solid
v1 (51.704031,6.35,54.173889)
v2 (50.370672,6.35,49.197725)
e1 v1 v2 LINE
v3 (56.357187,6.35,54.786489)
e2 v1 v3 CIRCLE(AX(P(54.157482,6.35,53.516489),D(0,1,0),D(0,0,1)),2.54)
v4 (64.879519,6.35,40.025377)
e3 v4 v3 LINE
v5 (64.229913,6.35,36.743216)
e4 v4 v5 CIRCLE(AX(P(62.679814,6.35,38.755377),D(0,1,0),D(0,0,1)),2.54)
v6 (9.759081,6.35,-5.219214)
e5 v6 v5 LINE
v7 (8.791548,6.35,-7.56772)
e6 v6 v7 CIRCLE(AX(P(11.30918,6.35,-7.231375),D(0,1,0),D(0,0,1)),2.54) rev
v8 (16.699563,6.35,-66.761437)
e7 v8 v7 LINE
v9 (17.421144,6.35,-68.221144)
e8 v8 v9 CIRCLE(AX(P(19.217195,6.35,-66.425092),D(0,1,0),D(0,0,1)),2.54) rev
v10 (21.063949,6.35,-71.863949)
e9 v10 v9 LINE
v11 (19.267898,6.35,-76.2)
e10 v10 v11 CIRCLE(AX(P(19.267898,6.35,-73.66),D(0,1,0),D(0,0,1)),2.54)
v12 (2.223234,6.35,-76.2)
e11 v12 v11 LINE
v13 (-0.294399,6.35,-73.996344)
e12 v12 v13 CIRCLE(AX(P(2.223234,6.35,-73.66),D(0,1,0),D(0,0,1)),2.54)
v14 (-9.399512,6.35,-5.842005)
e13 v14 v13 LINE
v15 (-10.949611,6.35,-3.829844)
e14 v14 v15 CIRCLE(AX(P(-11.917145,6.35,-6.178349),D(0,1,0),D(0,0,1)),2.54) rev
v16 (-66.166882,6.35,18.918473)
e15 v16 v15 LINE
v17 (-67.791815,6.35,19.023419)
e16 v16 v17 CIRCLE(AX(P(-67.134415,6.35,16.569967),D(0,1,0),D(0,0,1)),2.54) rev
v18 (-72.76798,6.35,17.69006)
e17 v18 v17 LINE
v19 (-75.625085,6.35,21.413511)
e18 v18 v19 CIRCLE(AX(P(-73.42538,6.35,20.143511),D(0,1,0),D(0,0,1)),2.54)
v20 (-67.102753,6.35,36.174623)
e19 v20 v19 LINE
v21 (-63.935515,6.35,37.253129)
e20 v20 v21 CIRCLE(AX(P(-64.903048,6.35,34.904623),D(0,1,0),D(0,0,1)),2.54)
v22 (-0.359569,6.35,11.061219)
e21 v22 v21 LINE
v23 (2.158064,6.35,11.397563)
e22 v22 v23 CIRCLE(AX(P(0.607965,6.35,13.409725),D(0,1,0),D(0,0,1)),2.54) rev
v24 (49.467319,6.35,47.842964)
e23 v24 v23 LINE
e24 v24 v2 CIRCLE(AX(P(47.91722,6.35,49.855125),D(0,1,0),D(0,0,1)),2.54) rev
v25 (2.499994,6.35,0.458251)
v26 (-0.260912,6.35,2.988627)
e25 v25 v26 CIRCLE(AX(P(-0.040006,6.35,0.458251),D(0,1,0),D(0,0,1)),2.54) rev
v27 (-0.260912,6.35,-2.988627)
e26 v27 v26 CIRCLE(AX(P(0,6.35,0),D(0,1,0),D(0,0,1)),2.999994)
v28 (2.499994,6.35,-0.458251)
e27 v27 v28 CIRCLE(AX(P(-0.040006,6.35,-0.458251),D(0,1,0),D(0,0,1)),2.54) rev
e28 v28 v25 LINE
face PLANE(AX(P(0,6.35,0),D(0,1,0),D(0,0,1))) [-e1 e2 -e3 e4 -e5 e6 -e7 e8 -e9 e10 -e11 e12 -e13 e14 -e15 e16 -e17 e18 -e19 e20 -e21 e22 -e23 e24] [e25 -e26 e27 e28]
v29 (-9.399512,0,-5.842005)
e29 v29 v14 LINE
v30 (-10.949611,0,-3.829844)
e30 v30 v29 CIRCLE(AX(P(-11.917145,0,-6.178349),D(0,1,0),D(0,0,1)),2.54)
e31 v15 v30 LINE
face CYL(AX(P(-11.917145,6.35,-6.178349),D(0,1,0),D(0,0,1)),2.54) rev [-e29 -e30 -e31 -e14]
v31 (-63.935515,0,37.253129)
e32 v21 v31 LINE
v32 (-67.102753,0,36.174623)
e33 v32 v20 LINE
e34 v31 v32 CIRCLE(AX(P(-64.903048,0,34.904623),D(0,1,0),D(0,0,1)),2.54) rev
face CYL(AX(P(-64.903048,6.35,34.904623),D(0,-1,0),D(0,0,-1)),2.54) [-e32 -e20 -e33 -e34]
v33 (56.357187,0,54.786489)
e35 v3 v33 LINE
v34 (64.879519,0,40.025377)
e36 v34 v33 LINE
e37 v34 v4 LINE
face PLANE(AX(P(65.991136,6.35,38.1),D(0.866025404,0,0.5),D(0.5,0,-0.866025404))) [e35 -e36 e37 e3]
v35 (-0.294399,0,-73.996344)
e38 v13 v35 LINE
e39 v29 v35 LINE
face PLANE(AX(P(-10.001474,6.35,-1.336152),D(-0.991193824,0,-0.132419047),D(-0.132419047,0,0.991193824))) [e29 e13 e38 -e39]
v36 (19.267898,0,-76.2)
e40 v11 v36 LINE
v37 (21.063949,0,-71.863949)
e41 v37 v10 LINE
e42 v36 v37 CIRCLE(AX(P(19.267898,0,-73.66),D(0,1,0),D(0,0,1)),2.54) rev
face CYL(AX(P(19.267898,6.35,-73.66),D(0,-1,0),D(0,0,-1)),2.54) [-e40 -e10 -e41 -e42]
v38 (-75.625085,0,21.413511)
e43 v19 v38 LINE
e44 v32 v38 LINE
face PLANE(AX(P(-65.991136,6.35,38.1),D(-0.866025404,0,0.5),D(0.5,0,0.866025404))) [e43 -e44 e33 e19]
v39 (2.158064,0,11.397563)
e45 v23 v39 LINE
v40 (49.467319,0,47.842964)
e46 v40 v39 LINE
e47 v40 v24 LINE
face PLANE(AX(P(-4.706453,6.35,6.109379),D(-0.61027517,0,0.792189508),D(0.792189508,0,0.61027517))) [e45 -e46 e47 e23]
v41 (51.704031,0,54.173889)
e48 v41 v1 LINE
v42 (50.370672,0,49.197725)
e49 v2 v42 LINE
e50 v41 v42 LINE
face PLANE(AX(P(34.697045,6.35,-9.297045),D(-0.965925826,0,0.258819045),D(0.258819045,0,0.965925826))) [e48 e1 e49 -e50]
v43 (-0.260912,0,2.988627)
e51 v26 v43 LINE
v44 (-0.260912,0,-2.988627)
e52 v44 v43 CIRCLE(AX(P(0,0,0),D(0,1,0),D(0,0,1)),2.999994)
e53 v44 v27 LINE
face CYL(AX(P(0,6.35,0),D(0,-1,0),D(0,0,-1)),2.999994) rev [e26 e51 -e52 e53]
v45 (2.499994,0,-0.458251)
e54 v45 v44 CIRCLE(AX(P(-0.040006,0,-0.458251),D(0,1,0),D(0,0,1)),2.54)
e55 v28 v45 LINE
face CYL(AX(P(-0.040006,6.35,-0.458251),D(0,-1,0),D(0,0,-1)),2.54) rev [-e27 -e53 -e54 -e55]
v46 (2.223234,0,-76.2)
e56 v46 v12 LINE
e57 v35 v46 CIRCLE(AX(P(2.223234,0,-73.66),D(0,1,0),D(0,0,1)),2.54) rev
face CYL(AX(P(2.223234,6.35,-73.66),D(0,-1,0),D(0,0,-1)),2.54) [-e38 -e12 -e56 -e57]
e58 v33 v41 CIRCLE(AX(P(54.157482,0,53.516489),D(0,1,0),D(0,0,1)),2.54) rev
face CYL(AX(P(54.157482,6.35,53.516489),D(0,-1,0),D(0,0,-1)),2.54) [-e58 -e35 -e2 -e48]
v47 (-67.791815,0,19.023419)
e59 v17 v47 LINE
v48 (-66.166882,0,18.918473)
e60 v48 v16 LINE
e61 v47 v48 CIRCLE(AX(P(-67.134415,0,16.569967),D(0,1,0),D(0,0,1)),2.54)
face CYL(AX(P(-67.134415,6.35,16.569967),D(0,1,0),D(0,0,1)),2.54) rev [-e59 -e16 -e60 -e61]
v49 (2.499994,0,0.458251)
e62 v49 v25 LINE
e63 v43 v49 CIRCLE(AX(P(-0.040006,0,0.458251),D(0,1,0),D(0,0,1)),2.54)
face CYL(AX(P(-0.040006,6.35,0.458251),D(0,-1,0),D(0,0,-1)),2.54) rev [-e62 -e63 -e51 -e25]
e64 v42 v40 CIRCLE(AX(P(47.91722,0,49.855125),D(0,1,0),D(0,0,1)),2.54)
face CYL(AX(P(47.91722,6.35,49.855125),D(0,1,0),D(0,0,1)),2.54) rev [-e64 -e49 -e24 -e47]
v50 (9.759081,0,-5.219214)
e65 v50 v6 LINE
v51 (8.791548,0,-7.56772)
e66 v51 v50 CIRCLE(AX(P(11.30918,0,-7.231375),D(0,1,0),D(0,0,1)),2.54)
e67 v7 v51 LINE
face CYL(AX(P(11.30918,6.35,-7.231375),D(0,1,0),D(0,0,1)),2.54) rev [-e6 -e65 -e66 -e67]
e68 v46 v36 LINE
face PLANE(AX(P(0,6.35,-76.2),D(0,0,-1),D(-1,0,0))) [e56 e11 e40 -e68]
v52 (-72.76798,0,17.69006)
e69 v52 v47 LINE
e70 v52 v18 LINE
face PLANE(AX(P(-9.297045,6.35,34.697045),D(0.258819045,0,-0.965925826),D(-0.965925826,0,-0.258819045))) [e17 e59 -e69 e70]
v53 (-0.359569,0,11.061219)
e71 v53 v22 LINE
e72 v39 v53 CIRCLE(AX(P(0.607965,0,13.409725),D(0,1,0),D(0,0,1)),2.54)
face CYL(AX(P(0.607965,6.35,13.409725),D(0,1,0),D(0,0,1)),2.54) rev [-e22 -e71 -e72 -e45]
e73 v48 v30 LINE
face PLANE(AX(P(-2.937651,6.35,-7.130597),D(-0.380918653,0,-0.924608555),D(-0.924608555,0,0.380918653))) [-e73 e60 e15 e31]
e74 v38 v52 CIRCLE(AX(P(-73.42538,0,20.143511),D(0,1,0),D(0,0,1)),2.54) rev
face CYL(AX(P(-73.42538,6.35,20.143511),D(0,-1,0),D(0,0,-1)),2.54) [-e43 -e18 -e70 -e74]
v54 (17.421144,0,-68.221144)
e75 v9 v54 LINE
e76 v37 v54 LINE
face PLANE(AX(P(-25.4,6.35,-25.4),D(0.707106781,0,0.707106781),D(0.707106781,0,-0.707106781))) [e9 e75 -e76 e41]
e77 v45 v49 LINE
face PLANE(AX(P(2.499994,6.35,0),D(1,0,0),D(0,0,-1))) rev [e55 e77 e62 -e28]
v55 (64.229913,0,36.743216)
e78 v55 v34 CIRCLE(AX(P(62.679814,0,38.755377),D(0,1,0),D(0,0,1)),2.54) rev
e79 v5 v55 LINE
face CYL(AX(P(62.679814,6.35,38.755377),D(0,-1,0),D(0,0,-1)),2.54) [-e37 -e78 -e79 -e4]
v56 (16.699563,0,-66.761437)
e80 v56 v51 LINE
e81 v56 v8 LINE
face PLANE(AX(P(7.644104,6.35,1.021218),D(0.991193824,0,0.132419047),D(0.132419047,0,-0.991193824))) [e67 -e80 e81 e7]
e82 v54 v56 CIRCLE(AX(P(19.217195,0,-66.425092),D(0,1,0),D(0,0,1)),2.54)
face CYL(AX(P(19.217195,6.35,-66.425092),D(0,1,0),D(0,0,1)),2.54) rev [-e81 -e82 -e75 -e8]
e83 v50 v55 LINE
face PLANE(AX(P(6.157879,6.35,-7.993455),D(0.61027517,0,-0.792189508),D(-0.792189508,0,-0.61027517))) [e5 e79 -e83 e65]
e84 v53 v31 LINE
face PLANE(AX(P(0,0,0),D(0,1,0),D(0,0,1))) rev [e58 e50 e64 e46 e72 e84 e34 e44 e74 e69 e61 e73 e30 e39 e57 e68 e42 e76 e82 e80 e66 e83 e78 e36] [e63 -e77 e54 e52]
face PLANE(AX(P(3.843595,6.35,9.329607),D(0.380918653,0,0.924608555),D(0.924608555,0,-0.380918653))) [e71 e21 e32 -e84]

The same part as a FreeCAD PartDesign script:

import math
import FreeCAD as App
import Part
import Sketcher

V = App.Vector
Q = App.Units.Quantity


def edges_at(feature, points):
    """Names of the edges that pass closest to the given points."""
    edges = feature.Shape.Edges
    near = lambda p: min(range(len(edges)), key=lambda i: edges[i].distToShape(Part.Vertex(*p))[0])
    return sorted({f"Edge{near(p) + 1}" for p in points})

doc = App.newDocument("Part")
body = doc.addObject("PartDesign::Body", "Body")

# Sketch on XZ plane
sketch1 = body.newObject("Sketcher::SketchObject", "Sketch")
sketch1.AttachmentSupport = (doc.getObject("XZ_Plane"), [""])
sketch1.MapMode = "FlatFace"
sketch1.addGeometry(Part.LineSegment(V(25.4, -76.2, 0), V(0, -76.2, 0)), False)
sketch1.addGeometry(Part.LineSegment(V(0, -76.2, 0), V(-9.593701, -4.388449, 0)), False)
sketch1.addGeometry(Part.LineSegment(V(-9.593701, -4.388449, 0), V(-66.961592, 19.245876, 0)), False)
sketch1.addGeometry(Part.LineSegment(V(-66.961592, 19.245876, 0), V(-78.691136, 16.102955, 0)), False)
sketch1.addGeometry(Part.LineSegment(V(-78.691136, 16.102955, 0), V(-65.991136, 38.1, 0)), False)
sketch1.addGeometry(Part.LineSegment(V(-65.991136, 38.1, 0), V(0.996342, 10.502613, 0)), False)
sketch1.addGeometry(Part.LineSegment(V(0.996342, 10.502613, 0), V(50.148214, 48.367502, 0)), False)
sketch1.addGeometry(Part.LineSegment(V(50.148214, 48.367502, 0), V(53.291136, 60.097045, 0)), False)
sketch1.addGeometry(Part.LineSegment(V(53.291136, 60.097045, 0), V(65.991136, 38.1, 0)), False)
sketch1.addGeometry(Part.LineSegment(V(65.991136, 38.1, 0), V(8.597359, -6.114164, 0)), False)
sketch1.addGeometry(Part.LineSegment(V(8.597359, -6.114164, 0), V(16.813378, -67.613378, 0)), False)
sketch1.addGeometry(Part.LineSegment(V(16.813378, -67.613378, 0), V(25.4, -76.2, 0)), False)
sketch1.addGeometry(Part.LineSegment(V(2.499994, -1.658311, 0), V(2.499994, 1.658311, 0)), False)
sketch1.addGeometry(Part.ArcOfCircle(Part.Circle(V(0, 0, 0), V(0, 0, 1), 2.999994), math.radians(33.557344), math.radians(326.442656)), False)
sketch1.addConstraint(Sketcher.Constraint("Coincident", 0, 2, 1, 1))
sketch1.addConstraint(Sketcher.Constraint("Coincident", 1, 2, 2, 1))
sketch1.addConstraint(Sketcher.Constraint("Coincident", 2, 2, 3, 1))
sketch1.addConstraint(Sketcher.Constraint("Coincident", 3, 2, 4, 1))
sketch1.addConstraint(Sketcher.Constraint("Coincident", 4, 2, 5, 1))
sketch1.addConstraint(Sketcher.Constraint("Coincident", 5, 2, 6, 1))
sketch1.addConstraint(Sketcher.Constraint("Coincident", 6, 2, 7, 1))
sketch1.addConstraint(Sketcher.Constraint("Coincident", 7, 2, 8, 1))
sketch1.addConstraint(Sketcher.Constraint("Coincident", 8, 2, 9, 1))
sketch1.addConstraint(Sketcher.Constraint("Coincident", 9, 2, 10, 1))
sketch1.addConstraint(Sketcher.Constraint("Coincident", 10, 2, 11, 1))
sketch1.addConstraint(Sketcher.Constraint("Coincident", 11, 2, 0, 1))
sketch1.addConstraint(Sketcher.Constraint("Coincident", 12, 1, 13, 2))
sketch1.addConstraint(Sketcher.Constraint("Coincident", 13, 1, 12, 2))
sketch1.addConstraint(Sketcher.Constraint("Horizontal", 0))
sketch1.addConstraint(Sketcher.Constraint("Vertical", 12))
sketch1.addConstraint(Sketcher.Constraint("Coincident", 13, 3, -1, 1))
sketch1.addConstraint(Sketcher.Constraint("Symmetric", 4, 2, 8, 2, -2))
sketch1.addConstraint(Sketcher.Constraint("PointOnObject", 0, 2, -2))
sketch1.addConstraint(Sketcher.Constraint("Parallel", 2, 5))
sketch1.addConstraint(Sketcher.Constraint("Parallel", 6, 9))
sketch1.addConstraint(Sketcher.Constraint("Parallel", 1, 10))
sketch1.addConstraint(Sketcher.Constraint("Equal", 1, 5))
sketch1.addConstraint(Sketcher.Constraint("Equal", 2, 6))
sketch1.addConstraint(Sketcher.Constraint("Equal", 3, 7))
sketch1.addConstraint(Sketcher.Constraint("Equal", 4, 8))
sketch1.addConstraint(Sketcher.Constraint("Equal", 5, 9))
sketch1.addConstraint(Sketcher.Constraint("Equal", 6, 10))
sketch1.addConstraint(Sketcher.Constraint("Equal", 7, 11))
sketch1.addConstraint(Sketcher.Constraint("DistanceX", 0, 2, 0, 1, Q("1 in")))
sketch1.addConstraint(Sketcher.Constraint("Distance", 4, Q("1 in")))
sketch1.addConstraint(Sketcher.Constraint("DistanceY", 0, 2, -1, 1, Q("3 in")))
sketch1.addConstraint(Sketcher.Constraint("Angle", 3, Q("-165 deg")))
sketch1.addConstraint(Sketcher.Constraint("Angle", 4, Q("60 deg")))
sketch1.addConstraint(Sketcher.Constraint("Angle", 7, Q("75 deg")))
sketch1.addConstraint(Sketcher.Constraint("Angle", 8, Q("-60 deg")))
sketch1.addConstraint(Sketcher.Constraint("DistanceY", -1, 1, 4, 2, Q("1.5 in")))
sketch1.addConstraint(Sketcher.Constraint("Radius", 13, Q("2.999994 mm")))
sketch1.addConstraint(Sketcher.Constraint("Distance", 2, Q("62.045599 mm")))
sketch1.addConstraint(Sketcher.Constraint("DistanceY", 12, 1, 12, 2, Q("3.316621 mm")))
sketch1.addConstraint(Sketcher.Constraint("DistanceX", 1, 2, -1, 1, Q("9.593701 mm")))
pad1 = body.newObject("PartDesign::Pad", "Pad")
pad1.Profile = sketch1
pad1.Length = Q("0.25 in")
pad1.Reversed = True
doc.recompute()

fillet = body.newObject("PartDesign::Fillet", "Fillet")
fillet.Base = (pad1, edges_at(pad1, [
    (-65.991, 3.175, 38.1),
    (-78.691, 3.175, 16.103),
    (-66.962, 3.175, 19.246),
    (-9.594, 3.175, -4.388),
    (0, 3.175, -76.2),
    (25.4, 3.175, -76.2),
    (16.813, 3.175, -67.613),
    (8.597, 3.175, -6.114),
    (65.991, 3.175, 38.1),
    (53.291, 3.175, 60.097),
    (50.148, 3.175, 48.368),
    (0.996, 3.175, 10.503),
    (2.5, 3.175, 1.658),
    (2.5, 3.175, -1.658),
]))
fillet.Radius = Q("0.1 in")

doc.recompute()
